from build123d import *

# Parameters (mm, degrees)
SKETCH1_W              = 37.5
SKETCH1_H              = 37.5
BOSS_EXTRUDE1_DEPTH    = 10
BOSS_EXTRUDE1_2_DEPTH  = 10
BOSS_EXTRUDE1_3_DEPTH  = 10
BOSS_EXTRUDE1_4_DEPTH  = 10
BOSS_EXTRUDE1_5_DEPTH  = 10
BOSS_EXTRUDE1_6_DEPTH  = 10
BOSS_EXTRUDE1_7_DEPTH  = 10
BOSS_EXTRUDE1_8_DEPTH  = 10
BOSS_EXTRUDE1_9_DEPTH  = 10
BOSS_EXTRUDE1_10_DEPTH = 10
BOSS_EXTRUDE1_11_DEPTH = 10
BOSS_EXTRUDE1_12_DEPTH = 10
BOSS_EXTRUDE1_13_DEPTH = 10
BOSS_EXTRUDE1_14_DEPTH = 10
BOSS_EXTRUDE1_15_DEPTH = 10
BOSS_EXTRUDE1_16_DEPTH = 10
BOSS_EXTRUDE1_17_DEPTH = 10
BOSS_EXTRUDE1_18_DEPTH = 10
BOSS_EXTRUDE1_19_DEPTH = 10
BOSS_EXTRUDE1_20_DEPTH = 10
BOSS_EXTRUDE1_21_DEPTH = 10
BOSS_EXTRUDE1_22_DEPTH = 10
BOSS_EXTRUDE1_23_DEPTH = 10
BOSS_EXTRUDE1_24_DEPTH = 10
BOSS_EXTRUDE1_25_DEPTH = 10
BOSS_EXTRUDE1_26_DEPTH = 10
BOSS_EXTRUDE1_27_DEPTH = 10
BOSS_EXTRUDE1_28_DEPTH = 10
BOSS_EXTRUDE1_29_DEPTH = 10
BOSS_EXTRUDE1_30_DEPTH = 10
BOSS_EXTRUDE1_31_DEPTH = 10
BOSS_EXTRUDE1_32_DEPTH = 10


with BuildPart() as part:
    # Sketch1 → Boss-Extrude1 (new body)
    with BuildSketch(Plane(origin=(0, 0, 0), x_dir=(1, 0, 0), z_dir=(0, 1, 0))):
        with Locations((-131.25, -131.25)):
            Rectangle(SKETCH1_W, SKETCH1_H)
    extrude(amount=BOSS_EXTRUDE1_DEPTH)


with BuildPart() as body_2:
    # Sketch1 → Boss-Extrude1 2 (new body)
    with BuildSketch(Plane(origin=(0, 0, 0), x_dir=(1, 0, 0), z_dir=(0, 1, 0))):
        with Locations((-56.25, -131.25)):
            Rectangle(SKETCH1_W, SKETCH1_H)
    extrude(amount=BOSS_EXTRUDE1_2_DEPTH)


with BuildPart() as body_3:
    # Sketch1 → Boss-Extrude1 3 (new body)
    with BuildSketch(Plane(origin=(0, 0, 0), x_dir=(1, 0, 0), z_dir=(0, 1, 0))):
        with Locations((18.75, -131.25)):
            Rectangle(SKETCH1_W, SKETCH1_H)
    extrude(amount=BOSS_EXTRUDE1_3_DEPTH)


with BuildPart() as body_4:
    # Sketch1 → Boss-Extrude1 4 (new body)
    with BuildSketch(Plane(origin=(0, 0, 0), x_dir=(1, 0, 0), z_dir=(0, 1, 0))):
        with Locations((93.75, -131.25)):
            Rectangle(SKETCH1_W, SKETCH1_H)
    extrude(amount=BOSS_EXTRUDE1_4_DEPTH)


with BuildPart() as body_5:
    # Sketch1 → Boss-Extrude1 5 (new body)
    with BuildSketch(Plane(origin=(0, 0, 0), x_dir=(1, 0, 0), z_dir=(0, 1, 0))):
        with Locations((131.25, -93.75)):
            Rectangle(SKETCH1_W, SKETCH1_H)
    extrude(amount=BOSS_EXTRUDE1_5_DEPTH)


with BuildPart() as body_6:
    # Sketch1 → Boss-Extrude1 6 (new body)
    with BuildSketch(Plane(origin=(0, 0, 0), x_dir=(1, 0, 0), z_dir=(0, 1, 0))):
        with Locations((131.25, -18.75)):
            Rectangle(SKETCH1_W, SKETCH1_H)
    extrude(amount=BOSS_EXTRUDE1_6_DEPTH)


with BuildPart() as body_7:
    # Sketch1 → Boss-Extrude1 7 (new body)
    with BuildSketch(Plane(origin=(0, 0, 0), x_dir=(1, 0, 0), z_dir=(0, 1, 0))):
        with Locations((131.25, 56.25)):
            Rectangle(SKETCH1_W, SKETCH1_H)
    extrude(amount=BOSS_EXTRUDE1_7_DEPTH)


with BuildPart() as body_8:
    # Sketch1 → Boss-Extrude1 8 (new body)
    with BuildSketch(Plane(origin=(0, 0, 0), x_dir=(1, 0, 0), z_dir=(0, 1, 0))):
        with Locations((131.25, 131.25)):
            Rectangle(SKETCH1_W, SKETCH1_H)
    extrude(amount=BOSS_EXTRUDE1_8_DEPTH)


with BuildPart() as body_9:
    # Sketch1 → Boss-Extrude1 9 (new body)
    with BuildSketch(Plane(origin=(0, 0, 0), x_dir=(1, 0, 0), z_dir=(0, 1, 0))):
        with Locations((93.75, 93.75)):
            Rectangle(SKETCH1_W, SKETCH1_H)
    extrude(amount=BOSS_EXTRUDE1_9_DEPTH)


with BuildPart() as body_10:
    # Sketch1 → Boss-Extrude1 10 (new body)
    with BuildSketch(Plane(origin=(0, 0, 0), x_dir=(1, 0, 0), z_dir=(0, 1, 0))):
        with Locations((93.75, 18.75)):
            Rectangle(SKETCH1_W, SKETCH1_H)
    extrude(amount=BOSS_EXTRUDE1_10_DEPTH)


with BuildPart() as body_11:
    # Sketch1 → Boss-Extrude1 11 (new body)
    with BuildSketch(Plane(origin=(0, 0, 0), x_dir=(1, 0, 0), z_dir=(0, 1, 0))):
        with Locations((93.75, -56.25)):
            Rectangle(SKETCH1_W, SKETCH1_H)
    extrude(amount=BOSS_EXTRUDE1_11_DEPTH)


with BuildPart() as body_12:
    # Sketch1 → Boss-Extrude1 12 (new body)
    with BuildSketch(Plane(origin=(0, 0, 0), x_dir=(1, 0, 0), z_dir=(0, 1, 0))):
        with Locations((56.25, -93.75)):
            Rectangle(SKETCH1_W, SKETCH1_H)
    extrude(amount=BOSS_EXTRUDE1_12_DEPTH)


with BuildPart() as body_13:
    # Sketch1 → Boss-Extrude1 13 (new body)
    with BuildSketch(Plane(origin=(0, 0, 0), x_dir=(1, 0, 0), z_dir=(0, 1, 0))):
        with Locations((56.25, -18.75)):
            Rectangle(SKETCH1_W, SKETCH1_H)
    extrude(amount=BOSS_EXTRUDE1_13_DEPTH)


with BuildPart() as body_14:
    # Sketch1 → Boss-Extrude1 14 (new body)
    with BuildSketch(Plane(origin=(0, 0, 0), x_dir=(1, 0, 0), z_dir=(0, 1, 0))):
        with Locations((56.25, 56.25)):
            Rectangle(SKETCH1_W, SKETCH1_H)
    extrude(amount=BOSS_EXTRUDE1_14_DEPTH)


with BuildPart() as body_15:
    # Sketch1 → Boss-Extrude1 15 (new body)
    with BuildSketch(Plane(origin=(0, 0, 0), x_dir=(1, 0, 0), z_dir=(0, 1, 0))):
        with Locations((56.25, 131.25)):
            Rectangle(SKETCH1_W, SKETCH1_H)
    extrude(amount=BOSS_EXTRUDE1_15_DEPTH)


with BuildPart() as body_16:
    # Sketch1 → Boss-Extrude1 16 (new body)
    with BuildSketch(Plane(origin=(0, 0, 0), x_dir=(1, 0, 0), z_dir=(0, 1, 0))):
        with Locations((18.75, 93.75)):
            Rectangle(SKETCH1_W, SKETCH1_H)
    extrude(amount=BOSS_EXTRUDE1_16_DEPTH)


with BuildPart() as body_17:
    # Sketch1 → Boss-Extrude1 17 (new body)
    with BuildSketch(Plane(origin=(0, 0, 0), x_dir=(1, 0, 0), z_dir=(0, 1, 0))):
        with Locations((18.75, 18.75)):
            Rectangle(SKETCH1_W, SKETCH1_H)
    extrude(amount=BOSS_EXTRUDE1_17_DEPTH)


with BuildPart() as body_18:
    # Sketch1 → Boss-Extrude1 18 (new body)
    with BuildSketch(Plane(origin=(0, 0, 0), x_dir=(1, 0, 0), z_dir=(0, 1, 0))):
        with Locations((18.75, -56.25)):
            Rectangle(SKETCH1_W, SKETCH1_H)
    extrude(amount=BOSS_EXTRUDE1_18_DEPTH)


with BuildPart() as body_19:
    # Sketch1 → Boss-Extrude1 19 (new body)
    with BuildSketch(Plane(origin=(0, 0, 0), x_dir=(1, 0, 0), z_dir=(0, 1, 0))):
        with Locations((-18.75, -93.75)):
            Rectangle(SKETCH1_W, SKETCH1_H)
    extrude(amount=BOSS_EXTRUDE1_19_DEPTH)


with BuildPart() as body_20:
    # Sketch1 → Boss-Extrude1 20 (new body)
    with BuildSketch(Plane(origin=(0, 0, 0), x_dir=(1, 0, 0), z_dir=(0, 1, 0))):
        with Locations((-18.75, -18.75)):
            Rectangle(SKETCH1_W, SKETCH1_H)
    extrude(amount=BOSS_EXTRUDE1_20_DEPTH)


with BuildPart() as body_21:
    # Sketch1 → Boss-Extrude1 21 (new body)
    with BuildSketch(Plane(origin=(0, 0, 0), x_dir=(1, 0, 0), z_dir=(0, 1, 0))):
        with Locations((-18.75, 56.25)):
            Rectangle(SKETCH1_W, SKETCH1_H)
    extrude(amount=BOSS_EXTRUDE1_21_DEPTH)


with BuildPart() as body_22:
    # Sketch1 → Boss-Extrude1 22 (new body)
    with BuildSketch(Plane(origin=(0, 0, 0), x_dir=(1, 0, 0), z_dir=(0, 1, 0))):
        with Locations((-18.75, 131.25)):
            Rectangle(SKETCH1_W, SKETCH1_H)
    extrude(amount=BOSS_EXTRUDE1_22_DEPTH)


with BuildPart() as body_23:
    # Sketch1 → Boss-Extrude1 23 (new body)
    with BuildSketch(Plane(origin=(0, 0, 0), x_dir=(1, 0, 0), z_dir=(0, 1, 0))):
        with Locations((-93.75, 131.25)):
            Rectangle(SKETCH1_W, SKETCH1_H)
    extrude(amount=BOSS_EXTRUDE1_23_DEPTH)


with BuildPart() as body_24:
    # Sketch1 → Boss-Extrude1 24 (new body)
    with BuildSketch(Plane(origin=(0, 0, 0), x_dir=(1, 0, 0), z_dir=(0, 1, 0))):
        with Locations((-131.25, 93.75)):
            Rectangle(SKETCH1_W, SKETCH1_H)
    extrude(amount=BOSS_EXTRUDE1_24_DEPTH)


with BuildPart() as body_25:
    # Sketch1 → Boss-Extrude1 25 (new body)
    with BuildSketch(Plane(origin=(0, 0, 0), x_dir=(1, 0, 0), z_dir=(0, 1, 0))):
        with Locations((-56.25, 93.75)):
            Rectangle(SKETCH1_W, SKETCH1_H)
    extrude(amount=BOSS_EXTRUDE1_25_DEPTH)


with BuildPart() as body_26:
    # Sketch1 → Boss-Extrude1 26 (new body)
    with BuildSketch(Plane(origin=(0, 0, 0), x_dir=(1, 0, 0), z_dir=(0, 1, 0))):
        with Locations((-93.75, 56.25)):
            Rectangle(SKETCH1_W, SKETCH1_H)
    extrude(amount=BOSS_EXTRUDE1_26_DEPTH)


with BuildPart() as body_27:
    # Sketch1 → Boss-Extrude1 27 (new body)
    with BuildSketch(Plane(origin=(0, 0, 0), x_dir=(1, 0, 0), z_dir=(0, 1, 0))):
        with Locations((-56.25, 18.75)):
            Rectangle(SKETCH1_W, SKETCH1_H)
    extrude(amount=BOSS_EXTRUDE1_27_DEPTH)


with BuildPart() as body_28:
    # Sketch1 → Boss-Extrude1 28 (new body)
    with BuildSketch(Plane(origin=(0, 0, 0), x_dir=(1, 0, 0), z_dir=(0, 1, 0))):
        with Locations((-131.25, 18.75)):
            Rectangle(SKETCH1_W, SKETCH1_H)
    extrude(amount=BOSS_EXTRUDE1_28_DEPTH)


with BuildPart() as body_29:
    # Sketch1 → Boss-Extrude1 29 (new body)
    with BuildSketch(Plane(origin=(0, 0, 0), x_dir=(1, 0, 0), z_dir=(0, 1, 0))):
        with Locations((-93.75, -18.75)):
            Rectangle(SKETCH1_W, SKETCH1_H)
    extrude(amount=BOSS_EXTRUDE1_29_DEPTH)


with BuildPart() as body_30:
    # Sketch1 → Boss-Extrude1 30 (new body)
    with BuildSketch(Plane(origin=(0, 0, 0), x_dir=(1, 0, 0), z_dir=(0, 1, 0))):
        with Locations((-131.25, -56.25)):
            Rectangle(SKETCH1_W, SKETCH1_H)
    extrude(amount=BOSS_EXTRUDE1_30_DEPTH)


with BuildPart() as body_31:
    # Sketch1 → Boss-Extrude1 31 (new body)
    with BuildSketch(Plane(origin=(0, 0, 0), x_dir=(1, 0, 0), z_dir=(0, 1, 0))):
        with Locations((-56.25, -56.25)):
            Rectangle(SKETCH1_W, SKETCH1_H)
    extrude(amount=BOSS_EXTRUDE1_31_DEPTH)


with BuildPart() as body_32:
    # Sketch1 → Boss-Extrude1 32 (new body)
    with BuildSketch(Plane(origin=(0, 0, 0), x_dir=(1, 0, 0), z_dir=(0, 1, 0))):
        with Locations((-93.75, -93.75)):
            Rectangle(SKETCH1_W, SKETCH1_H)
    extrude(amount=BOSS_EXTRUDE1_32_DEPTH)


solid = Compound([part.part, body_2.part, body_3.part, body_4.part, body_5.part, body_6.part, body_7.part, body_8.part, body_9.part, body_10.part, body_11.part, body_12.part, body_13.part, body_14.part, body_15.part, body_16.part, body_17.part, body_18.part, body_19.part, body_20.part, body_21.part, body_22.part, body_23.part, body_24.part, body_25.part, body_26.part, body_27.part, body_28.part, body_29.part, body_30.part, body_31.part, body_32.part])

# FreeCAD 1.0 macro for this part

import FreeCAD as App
import Part
import Sketcher
from FreeCAD import Vector
Q = App.Units.Quantity


def add_polygon(sketch, points):
    """Adds a closed chain of lines whose ends are joined by coincident constraints."""
    first, n = sketch.GeometryCount, len(points)
    for a, b in zip(points, points[1:] + points[:1]):
        sketch.addGeometry(Part.LineSegment(App.Vector(*a, 0), App.Vector(*b, 0)), False)
    for i in range(n):
        sketch.addConstraint(Sketcher.Constraint("Coincident", first + i, 2, first + (i + 1) % n, 1))

doc = App.newDocument("Part")
body = doc.addObject("PartDesign::Body", "Body")

# Sketch on XZ plane
sketch1 = body.newObject("Sketcher::SketchObject", "Sketch")
sketch1.AttachmentSupport = (doc.getObject("XZ_Plane"), [""])
sketch1.MapMode = "FlatFace"
add_polygon(sketch1, [(-150, 112), (-150, 150), (-112, 150), (-112, 112)])  # lines 0-3
sketch1.addConstraint([
    Sketcher.Constraint("Vertical", 0),
    Sketcher.Constraint("Horizontal", 1),
    Sketcher.Constraint("Vertical", 2),
    Sketcher.Constraint("Horizontal", 3),
    Sketcher.Constraint("Equal", 3, 0),
    Sketcher.Constraint("DistanceX", 1, 1, 1, 2, Q("37.5 mm")),
    Sketcher.Constraint("DistanceX", 0, 2, -1, 1, Q("150 mm")),
    Sketcher.Constraint("DistanceY", -1, 1, 0, 2, Q("150 mm")),
])
pad1 = body.newObject("PartDesign::Pad", "Pad")
pad1.Profile = sketch1
pad1.Length = 10
pad1.Reversed = True
body2 = doc.addObject("PartDesign::Body", "Body001")

# Sketch on XZ plane
sketch2 = body2.newObject("Sketcher::SketchObject", "Sketch001")
sketch2.AttachmentSupport = (doc.getObject("XZ_Plane001"), [""])
sketch2.MapMode = "FlatFace"
add_polygon(sketch2, [(-75, 112), (-75, 150), (-38, 150), (-38, 112)])  # lines 0-3
sketch2.addConstraint([
    Sketcher.Constraint("Vertical", 0),
    Sketcher.Constraint("Horizontal", 1),
    Sketcher.Constraint("Vertical", 2),
    Sketcher.Constraint("Horizontal", 3),
    Sketcher.Constraint("Equal", 3, 0),
    Sketcher.Constraint("DistanceX", 1, 1, 1, 2, Q("37.5 mm")),
    Sketcher.Constraint("DistanceX", 0, 2, -1, 1, Q("75 mm")),
    Sketcher.Constraint("DistanceY", -1, 1, 0, 2, Q("150 mm")),
])
pad2 = body2.newObject("PartDesign::Pad", "Pad001")
pad2.Profile = sketch2
pad2.Length = 10
pad2.Reversed = True
body3 = doc.addObject("PartDesign::Body", "Body002")

# Sketch on XZ plane
sketch3 = body3.newObject("Sketcher::SketchObject", "Sketch002")
sketch3.AttachmentSupport = (doc.getObject("XZ_Plane002"), [""])
sketch3.MapMode = "FlatFace"
add_polygon(sketch3, [(0, 112), (0, 150), (38, 150), (38, 112)])  # lines 0-3
sketch3.addConstraint([
    Sketcher.Constraint("Vertical", 0),
    Sketcher.Constraint("Horizontal", 1),
    Sketcher.Constraint("Vertical", 2),
    Sketcher.Constraint("Horizontal", 3),
    Sketcher.Constraint("PointOnObject", 0, 2, -2),
    Sketcher.Constraint("Equal", 3, 0),
    Sketcher.Constraint("DistanceX", 1, 1, 1, 2, Q("37.5 mm")),
    Sketcher.Constraint("DistanceY", -1, 1, 0, 2, Q("150 mm")),
])
pad3 = body3.newObject("PartDesign::Pad", "Pad002")
pad3.Profile = sketch3
pad3.Length = 10
pad3.Reversed = True
body4 = doc.addObject("PartDesign::Body", "Body003")

# Sketch on XZ plane
sketch4 = body4.newObject("Sketcher::SketchObject", "Sketch003")
sketch4.AttachmentSupport = (doc.getObject("XZ_Plane003"), [""])
sketch4.MapMode = "FlatFace"
add_polygon(sketch4, [(75, 112), (75, 150), (112, 150), (112, 112)])  # lines 0-3
sketch4.addConstraint([
    Sketcher.Constraint("Vertical", 0),
    Sketcher.Constraint("Horizontal", 1),
    Sketcher.Constraint("Vertical", 2),
    Sketcher.Constraint("Horizontal", 3),
    Sketcher.Constraint("Equal", 3, 0),
    Sketcher.Constraint("DistanceX", 1, 1, 1, 2, Q("37.5 mm")),
    Sketcher.Constraint("DistanceX", -1, 1, 0, 2, Q("75 mm")),
    Sketcher.Constraint("DistanceY", -1, 1, 0, 2, Q("150 mm")),
])
pad4 = body4.newObject("PartDesign::Pad", "Pad003")
pad4.Profile = sketch4
pad4.Length = 10
pad4.Reversed = True
body5 = doc.addObject("PartDesign::Body", "Body004")

# Sketch on XZ plane
sketch5 = body5.newObject("Sketcher::SketchObject", "Sketch004")
sketch5.AttachmentSupport = (doc.getObject("XZ_Plane004"), [""])
sketch5.MapMode = "FlatFace"
add_polygon(sketch5, [(112, 75), (112, 112), (150, 112), (150, 75)])  # lines 0-3
sketch5.addConstraint([
    Sketcher.Constraint("Vertical", 0),
    Sketcher.Constraint("Horizontal", 1),
    Sketcher.Constraint("Vertical", 2),
    Sketcher.Constraint("Horizontal", 3),
    Sketcher.Constraint("Equal", 3, 0),
    Sketcher.Constraint("DistanceX", 1, 1, 1, 2, Q("37.5 mm")),
    Sketcher.Constraint("DistanceX", -1, 1, 1, 2, Q("150 mm")),
    Sketcher.Constraint("DistanceY", -1, 1, 2, 2, Q("75 mm")),
])
pad5 = body5.newObject("PartDesign::Pad", "Pad004")
pad5.Profile = sketch5
pad5.Length = 10
pad5.Reversed = True
body6 = doc.addObject("PartDesign::Body", "Body005")

# Sketch on XZ plane
sketch6 = body6.newObject("Sketcher::SketchObject", "Sketch005")
sketch6.AttachmentSupport = (doc.getObject("XZ_Plane005"), [""])
sketch6.MapMode = "FlatFace"
add_polygon(sketch6, [(112, 0), (112, 38), (150, 38), (150, 0)])  # lines 0-3
sketch6.addConstraint([
    Sketcher.Constraint("Vertical", 0),
    Sketcher.Constraint("Horizontal", 1),
    Sketcher.Constraint("Vertical", 2),
    Sketcher.Constraint("Horizontal", 3),
    Sketcher.Constraint("PointOnObject", 2, 2, -1),
    Sketcher.Constraint("Equal", 3, 0),
    Sketcher.Constraint("DistanceX", 1, 1, 1, 2, Q("37.5 mm")),
    Sketcher.Constraint("DistanceX", -1, 1, 1, 2, Q("150 mm")),
])
pad6 = body6.newObject("PartDesign::Pad", "Pad005")
pad6.Profile = sketch6
pad6.Length = 10
pad6.Reversed = True
body7 = doc.addObject("PartDesign::Body", "Body006")

# Sketch on XZ plane
sketch7 = body7.newObject("Sketcher::SketchObject", "Sketch006")
sketch7.AttachmentSupport = (doc.getObject("XZ_Plane006"), [""])
sketch7.MapMode = "FlatFace"
add_polygon(sketch7, [(112, -75), (112, -38), (150, -38), (150, -75)])  # lines 0-3
sketch7.addConstraint([
    Sketcher.Constraint("Vertical", 0),
    Sketcher.Constraint("Horizontal", 1),
    Sketcher.Constraint("Vertical", 2),
    Sketcher.Constraint("Horizontal", 3),
    Sketcher.Constraint("Equal", 3, 0),
    Sketcher.Constraint("DistanceX", 1, 1, 1, 2, Q("37.5 mm")),
    Sketcher.Constraint("DistanceX", -1, 1, 1, 2, Q("150 mm")),
    Sketcher.Constraint("DistanceY", 2, 2, -1, 1, Q("75 mm")),
])
pad7 = body7.newObject("PartDesign::Pad", "Pad006")
pad7.Profile = sketch7
pad7.Length = 10
pad7.Reversed = True
body8 = doc.addObject("PartDesign::Body", "Body007")

# Sketch on XZ plane
sketch8 = body8.newObject("Sketcher::SketchObject", "Sketch007")
sketch8.AttachmentSupport = (doc.getObject("XZ_Plane007"), [""])
sketch8.MapMode = "FlatFace"
add_polygon(sketch8, [(112, -150), (112, -112), (150, -112), (150, -150)])  # lines 0-3
sketch8.addConstraint([
    Sketcher.Constraint("Vertical", 0),
    Sketcher.Constraint("Horizontal", 1),
    Sketcher.Constraint("Vertical", 2),
    Sketcher.Constraint("Horizontal", 3),
    Sketcher.Constraint("Equal", 3, 0),
    Sketcher.Constraint("DistanceX", 1, 1, 1, 2, Q("37.5 mm")),
    Sketcher.Constraint("DistanceX", -1, 1, 1, 2, Q("150 mm")),
    Sketcher.Constraint("DistanceY", 2, 2, -1, 1, Q("150 mm")),
])
pad8 = body8.newObject("PartDesign::Pad", "Pad007")
pad8.Profile = sketch8
pad8.Length = 10
pad8.Reversed = True
body9 = doc.addObject("PartDesign::Body", "Body008")

# Sketch on XZ plane
sketch9 = body9.newObject("Sketcher::SketchObject", "Sketch008")
sketch9.AttachmentSupport = (doc.getObject("XZ_Plane008"), [""])
sketch9.MapMode = "FlatFace"
add_polygon(sketch9, [(75, -112), (75, -75), (112, -75), (112, -112)])  # lines 0-3
sketch9.addConstraint([
    Sketcher.Constraint("Vertical", 0),
    Sketcher.Constraint("Horizontal", 1),
    Sketcher.Constraint("Vertical", 2),
    Sketcher.Constraint("Horizontal", 3),
    Sketcher.Constraint("Equal", 3, 0),
    Sketcher.Constraint("DistanceX", 1, 1, 1, 2, Q("37.5 mm")),
    Sketcher.Constraint("DistanceX", -1, 1, 0, 2, Q("75 mm")),
    Sketcher.Constraint("DistanceY", 0, 2, -1, 1, Q("75 mm")),
])
pad9 = body9.newObject("PartDesign::Pad", "Pad008")
pad9.Profile = sketch9
pad9.Length = 10
pad9.Reversed = True
body10 = doc.addObject("PartDesign::Body", "Body009")

# Sketch on XZ plane
sketch10 = body10.newObject("Sketcher::SketchObject", "Sketch009")
sketch10.AttachmentSupport = (doc.getObject("XZ_Plane009"), [""])
sketch10.MapMode = "FlatFace"
add_polygon(sketch10, [(75, -38), (75, 0), (112, 0), (112, -38)])  # lines 0-3
sketch10.addConstraint([
    Sketcher.Constraint("Vertical", 0),
    Sketcher.Constraint("Horizontal", 1),
    Sketcher.Constraint("Vertical", 2),
    Sketcher.Constraint("Horizontal", 3),
    Sketcher.Constraint("PointOnObject", 0, 2, -1),
    Sketcher.Constraint("Equal", 3, 0),
    Sketcher.Constraint("DistanceX", 1, 1, 1, 2, Q("37.5 mm")),
    Sketcher.Constraint("DistanceX", -1, 1, 0, 2, Q("75 mm")),
])
pad10 = body10.newObject("PartDesign::Pad", "Pad009")
pad10.Profile = sketch10
pad10.Length = 10
pad10.Reversed = True
body11 = doc.addObject("PartDesign::Body", "Body010")

# Sketch on XZ plane
sketch11 = body11.newObject("Sketcher::SketchObject", "Sketch010")
sketch11.AttachmentSupport = (doc.getObject("XZ_Plane010"), [""])
sketch11.MapMode = "FlatFace"
add_polygon(sketch11, [(75, 38), (75, 75), (112, 75), (112, 38)])  # lines 0-3
sketch11.addConstraint([
    Sketcher.Constraint("Vertical", 0),
    Sketcher.Constraint("Horizontal", 1),
    Sketcher.Constraint("Vertical", 2),
    Sketcher.Constraint("Horizontal", 3),
    Sketcher.Constraint("Equal", 3, 0),
    Sketcher.Constraint("DistanceX", 1, 1, 1, 2, Q("37.5 mm")),
    Sketcher.Constraint("DistanceX", -1, 1, 0, 2, Q("75 mm")),
    Sketcher.Constraint("DistanceY", -1, 1, 0, 2, Q("75 mm")),
])
pad11 = body11.newObject("PartDesign::Pad", "Pad010")
pad11.Profile = sketch11
pad11.Length = 10
pad11.Reversed = True
body12 = doc.addObject("PartDesign::Body", "Body011")

# Sketch on XZ plane
sketch12 = body12.newObject("Sketcher::SketchObject", "Sketch011")
sketch12.AttachmentSupport = (doc.getObject("XZ_Plane011"), [""])
sketch12.MapMode = "FlatFace"
add_polygon(sketch12, [(38, 75), (38, 112), (75, 112), (75, 75)])  # lines 0-3
sketch12.addConstraint([
    Sketcher.Constraint("Vertical", 0),
    Sketcher.Constraint("Horizontal", 1),
    Sketcher.Constraint("Vertical", 2),
    Sketcher.Constraint("Horizontal", 3),
    Sketcher.Constraint("Equal", 3, 0),
    Sketcher.Constraint("DistanceX", 1, 1, 1, 2, Q("37.5 mm")),
    Sketcher.Constraint("DistanceX", -1, 1, 1, 2, Q("75 mm")),
    Sketcher.Constraint("DistanceY", -1, 1, 2, 2, Q("75 mm")),
])
pad12 = body12.newObject("PartDesign::Pad", "Pad011")
pad12.Profile = sketch12
pad12.Length = 10
pad12.Reversed = True
body13 = doc.addObject("PartDesign::Body", "Body012")

# Sketch on XZ plane
sketch13 = body13.newObject("Sketcher::SketchObject", "Sketch012")
sketch13.AttachmentSupport = (doc.getObject("XZ_Plane012"), [""])
sketch13.MapMode = "FlatFace"
add_polygon(sketch13, [(38, 0), (38, 38), (75, 38), (75, 0)])  # lines 0-3
sketch13.addConstraint([
    Sketcher.Constraint("Vertical", 0),
    Sketcher.Constraint("Horizontal", 1),
    Sketcher.Constraint("Vertical", 2),
    Sketcher.Constraint("Horizontal", 3),
    Sketcher.Constraint("PointOnObject", 2, 2, -1),
    Sketcher.Constraint("Equal", 3, 0),
    Sketcher.Constraint("DistanceX", 1, 1, 1, 2, Q("37.5 mm")),
    Sketcher.Constraint("DistanceX", -1, 1, 1, 2, Q("75 mm")),
])
pad13 = body13.newObject("PartDesign::Pad", "Pad012")
pad13.Profile = sketch13
pad13.Length = 10
pad13.Reversed = True
body14 = doc.addObject("PartDesign::Body", "Body013")

# Sketch on XZ plane
sketch14 = body14.newObject("Sketcher::SketchObject", "Sketch013")
sketch14.AttachmentSupport = (doc.getObject("XZ_Plane013"), [""])
sketch14.MapMode = "FlatFace"
add_polygon(sketch14, [(38, -75), (38, -38), (75, -38), (75, -75)])  # lines 0-3
sketch14.addConstraint([
    Sketcher.Constraint("Vertical", 0),
    Sketcher.Constraint("Horizontal", 1),
    Sketcher.Constraint("Vertical", 2),
    Sketcher.Constraint("Horizontal", 3),
    Sketcher.Constraint("Equal", 3, 0),
    Sketcher.Constraint("DistanceX", 1, 1, 1, 2, Q("37.5 mm")),
    Sketcher.Constraint("DistanceX", -1, 1, 1, 2, Q("75 mm")),
    Sketcher.Constraint("DistanceY", 2, 2, -1, 1, Q("75 mm")),
])
pad14 = body14.newObject("PartDesign::Pad", "Pad013")
pad14.Profile = sketch14
pad14.Length = 10
pad14.Reversed = True
body15 = doc.addObject("PartDesign::Body", "Body014")

# Sketch on XZ plane
sketch15 = body15.newObject("Sketcher::SketchObject", "Sketch014")
sketch15.AttachmentSupport = (doc.getObject("XZ_Plane014"), [""])
sketch15.MapMode = "FlatFace"
add_polygon(sketch15, [(38, -150), (38, -112), (75, -112), (75, -150)])  # lines 0-3
sketch15.addConstraint([
    Sketcher.Constraint("Vertical", 0),
    Sketcher.Constraint("Horizontal", 1),
    Sketcher.Constraint("Vertical", 2),
    Sketcher.Constraint("Horizontal", 3),
    Sketcher.Constraint("Equal", 3, 0),
    Sketcher.Constraint("DistanceX", 1, 1, 1, 2, Q("37.5 mm")),
    Sketcher.Constraint("DistanceX", -1, 1, 1, 2, Q("75 mm")),
    Sketcher.Constraint("DistanceY", 2, 2, -1, 1, Q("150 mm")),
])
pad15 = body15.newObject("PartDesign::Pad", "Pad014")
pad15.Profile = sketch15
pad15.Length = 10
pad15.Reversed = True
body16 = doc.addObject("PartDesign::Body", "Body015")

# Sketch on XZ plane
sketch16 = body16.newObject("Sketcher::SketchObject", "Sketch015")
sketch16.AttachmentSupport = (doc.getObject("XZ_Plane015"), [""])
sketch16.MapMode = "FlatFace"
add_polygon(sketch16, [(0, -112), (0, -75), (38, -75), (38, -112)])  # lines 0-3
sketch16.addConstraint([
    Sketcher.Constraint("Vertical", 0),
    Sketcher.Constraint("Horizontal", 1),
    Sketcher.Constraint("Vertical", 2),
    Sketcher.Constraint("Horizontal", 3),
    Sketcher.Constraint("PointOnObject", 0, 2, -2),
    Sketcher.Constraint("Equal", 3, 0),
    Sketcher.Constraint("DistanceX", 1, 1, 1, 2, Q("37.5 mm")),
    Sketcher.Constraint("DistanceY", 0, 2, -1, 1, Q("75 mm")),
])
pad16 = body16.newObject("PartDesign::Pad", "Pad015")
pad16.Profile = sketch16
pad16.Length = 10
pad16.Reversed = True
body17 = doc.addObject("PartDesign::Body", "Body016")

# Sketch on XZ plane
sketch17 = body17.newObject("Sketcher::SketchObject", "Sketch016")
sketch17.AttachmentSupport = (doc.getObject("XZ_Plane016"), [""])
sketch17.MapMode = "FlatFace"
add_polygon(sketch17, [(0, -38), (0, 0), (38, 0), (38, -38)])  # lines 0-3
sketch17.addConstraint([
    Sketcher.Constraint("Vertical", 0),
    Sketcher.Constraint("Horizontal", 1),
    Sketcher.Constraint("Vertical", 2),
    Sketcher.Constraint("Horizontal", 3),
    Sketcher.Constraint("Coincident", 0, 2, -1, 1),
    Sketcher.Constraint("Equal", 3, 0),
    Sketcher.Constraint("DistanceX", 1, 1, 1, 2, Q("37.5 mm")),
])
pad17 = body17.newObject("PartDesign::Pad", "Pad016")
pad17.Profile = sketch17
pad17.Length = 10
pad17.Reversed = True
body18 = doc.addObject("PartDesign::Body", "Body017")

# Sketch on XZ plane
sketch18 = body18.newObject("Sketcher::SketchObject", "Sketch017")
sketch18.AttachmentSupport = (doc.getObject("XZ_Plane017"), [""])
sketch18.MapMode = "FlatFace"
add_polygon(sketch18, [(0, 38), (0, 75), (38, 75), (38, 38)])  # lines 0-3
sketch18.addConstraint([
    Sketcher.Constraint("Vertical", 0),
    Sketcher.Constraint("Horizontal", 1),
    Sketcher.Constraint("Vertical", 2),
    Sketcher.Constraint("Horizontal", 3),
    Sketcher.Constraint("PointOnObject", 0, 2, -2),
    Sketcher.Constraint("Equal", 3, 0),
    Sketcher.Constraint("DistanceX", 1, 1, 1, 2, Q("37.5 mm")),
    Sketcher.Constraint("DistanceY", -1, 1, 0, 2, Q("75 mm")),
])
pad18 = body18.newObject("PartDesign::Pad", "Pad017")
pad18.Profile = sketch18
pad18.Length = 10
pad18.Reversed = True
body19 = doc.addObject("PartDesign::Body", "Body018")

# Sketch on XZ plane
sketch19 = body19.newObject("Sketcher::SketchObject", "Sketch018")
sketch19.AttachmentSupport = (doc.getObject("XZ_Plane018"), [""])
sketch19.MapMode = "FlatFace"
add_polygon(sketch19, [(-38, 75), (-38, 112), (0, 112), (0, 75)])  # lines 0-3
sketch19.addConstraint([
    Sketcher.Constraint("Vertical", 0),
    Sketcher.Constraint("Horizontal", 1),
    Sketcher.Constraint("Vertical", 2),
    Sketcher.Constraint("Horizontal", 3),
    Sketcher.Constraint("PointOnObject", 1, 2, -2),
    Sketcher.Constraint("Equal", 3, 0),
    Sketcher.Constraint("DistanceX", 1, 1, 1, 2, Q("37.5 mm")),
    Sketcher.Constraint("DistanceY", -1, 1, 2, 2, Q("75 mm")),
])
pad19 = body19.newObject("PartDesign::Pad", "Pad018")
pad19.Profile = sketch19
pad19.Length = 10
pad19.Reversed = True
body20 = doc.addObject("PartDesign::Body", "Body019")

# Sketch on XZ plane
sketch20 = body20.newObject("Sketcher::SketchObject", "Sketch019")
sketch20.AttachmentSupport = (doc.getObject("XZ_Plane019"), [""])
sketch20.MapMode = "FlatFace"
add_polygon(sketch20, [(-38, 0), (-38, 38), (0, 38), (0, 0)])  # lines 0-3
sketch20.addConstraint([
    Sketcher.Constraint("Vertical", 0),
    Sketcher.Constraint("Horizontal", 1),
    Sketcher.Constraint("Vertical", 2),
    Sketcher.Constraint("Horizontal", 3),
    Sketcher.Constraint("Coincident", 2, 2, -1, 1),
    Sketcher.Constraint("Equal", 3, 0),
    Sketcher.Constraint("DistanceX", 1, 1, 1, 2, Q("37.5 mm")),
])
pad20 = body20.newObject("PartDesign::Pad", "Pad019")
pad20.Profile = sketch20
pad20.Length = 10
pad20.Reversed = True
body21 = doc.addObject("PartDesign::Body", "Body020")

# Sketch on XZ plane
sketch21 = body21.newObject("Sketcher::SketchObject", "Sketch020")
sketch21.AttachmentSupport = (doc.getObject("XZ_Plane020"), [""])
sketch21.MapMode = "FlatFace"
add_polygon(sketch21, [(-38, -75), (-38, -38), (0, -38), (0, -75)])  # lines 0-3
sketch21.addConstraint([
    Sketcher.Constraint("Vertical", 0),
    Sketcher.Constraint("Horizontal", 1),
    Sketcher.Constraint("Vertical", 2),
    Sketcher.Constraint("Horizontal", 3),
    Sketcher.Constraint("PointOnObject", 1, 2, -2),
    Sketcher.Constraint("Equal", 3, 0),
    Sketcher.Constraint("DistanceX", 1, 1, 1, 2, Q("37.5 mm")),
    Sketcher.Constraint("DistanceY", 2, 2, -1, 1, Q("75 mm")),
])
pad21 = body21.newObject("PartDesign::Pad", "Pad020")
pad21.Profile = sketch21
pad21.Length = 10
pad21.Reversed = True
body22 = doc.addObject("PartDesign::Body", "Body021")

# Sketch on XZ plane
sketch22 = body22.newObject("Sketcher::SketchObject", "Sketch021")
sketch22.AttachmentSupport = (doc.getObject("XZ_Plane021"), [""])
sketch22.MapMode = "FlatFace"
add_polygon(sketch22, [(-38, -150), (-38, -112), (0, -112), (0, -150)])  # lines 0-3
sketch22.addConstraint([
    Sketcher.Constraint("Vertical", 0),
    Sketcher.Constraint("Horizontal", 1),
    Sketcher.Constraint("Vertical", 2),
    Sketcher.Constraint("Horizontal", 3),
    Sketcher.Constraint("PointOnObject", 1, 2, -2),
    Sketcher.Constraint("Equal", 3, 0),
    Sketcher.Constraint("DistanceX", 1, 1, 1, 2, Q("37.5 mm")),
    Sketcher.Constraint("DistanceY", 2, 2, -1, 1, Q("150 mm")),
])
pad22 = body22.newObject("PartDesign::Pad", "Pad021")
pad22.Profile = sketch22
pad22.Length = 10
pad22.Reversed = True
body23 = doc.addObject("PartDesign::Body", "Body022")

# Sketch on XZ plane
sketch23 = body23.newObject("Sketcher::SketchObject", "Sketch022")
sketch23.AttachmentSupport = (doc.getObject("XZ_Plane022"), [""])
sketch23.MapMode = "FlatFace"
add_polygon(sketch23, [(-112, -150), (-112, -112), (-75, -112), (-75, -150)])  # lines 0-3
sketch23.addConstraint([
    Sketcher.Constraint("Vertical", 0),
    Sketcher.Constraint("Horizontal", 1),
    Sketcher.Constraint("Vertical", 2),
    Sketcher.Constraint("Horizontal", 3),
    Sketcher.Constraint("Equal", 3, 0),
    Sketcher.Constraint("DistanceX", 1, 1, 1, 2, Q("37.5 mm")),
    Sketcher.Constraint("DistanceX", 1, 2, -1, 1, Q("75 mm")),
    Sketcher.Constraint("DistanceY", 2, 2, -1, 1, Q("150 mm")),
])
pad23 = body23.newObject("PartDesign::Pad", "Pad022")
pad23.Profile = sketch23
pad23.Length = 10
pad23.Reversed = True
body24 = doc.addObject("PartDesign::Body", "Body023")

# Sketch on XZ plane
sketch24 = body24.newObject("Sketcher::SketchObject", "Sketch023")
sketch24.AttachmentSupport = (doc.getObject("XZ_Plane023"), [""])
sketch24.MapMode = "FlatFace"
add_polygon(sketch24, [(-150, -112), (-150, -75), (-112, -75), (-112, -112)])  # lines 0-3
sketch24.addConstraint([
    Sketcher.Constraint("Vertical", 0),
    Sketcher.Constraint("Horizontal", 1),
    Sketcher.Constraint("Vertical", 2),
    Sketcher.Constraint("Horizontal", 3),
    Sketcher.Constraint("Equal", 3, 0),
    Sketcher.Constraint("DistanceX", 1, 1, 1, 2, Q("37.5 mm")),
    Sketcher.Constraint("DistanceX", 0, 2, -1, 1, Q("150 mm")),
    Sketcher.Constraint("DistanceY", 0, 2, -1, 1, Q("75 mm")),
])
pad24 = body24.newObject("PartDesign::Pad", "Pad023")
pad24.Profile = sketch24
pad24.Length = 10
pad24.Reversed = True
body25 = doc.addObject("PartDesign::Body", "Body024")

# Sketch on XZ plane
sketch25 = body25.newObject("Sketcher::SketchObject", "Sketch024")
sketch25.AttachmentSupport = (doc.getObject("XZ_Plane024"), [""])
sketch25.MapMode = "FlatFace"
add_polygon(sketch25, [(-75, -112), (-75, -75), (-38, -75), (-38, -112)])  # lines 0-3
sketch25.addConstraint([
    Sketcher.Constraint("Vertical", 0),
    Sketcher.Constraint("Horizontal", 1),
    Sketcher.Constraint("Vertical", 2),
    Sketcher.Constraint("Horizontal", 3),
    Sketcher.Constraint("Equal", 3, 0),
    Sketcher.Constraint("DistanceX", 1, 1, 1, 2, Q("37.5 mm")),
    Sketcher.Constraint("DistanceX", 0, 2, -1, 1, Q("75 mm")),
    Sketcher.Constraint("DistanceY", 0, 2, -1, 1, Q("75 mm")),
])
pad25 = body25.newObject("PartDesign::Pad", "Pad024")
pad25.Profile = sketch25
pad25.Length = 10
pad25.Reversed = True
body26 = doc.addObject("PartDesign::Body", "Body025")

# Sketch on XZ plane
sketch26 = body26.newObject("Sketcher::SketchObject", "Sketch025")
sketch26.AttachmentSupport = (doc.getObject("XZ_Plane025"), [""])
sketch26.MapMode = "FlatFace"
add_polygon(sketch26, [(-112, -75), (-112, -38), (-75, -38), (-75, -75)])  # lines 0-3
sketch26.addConstraint([
    Sketcher.Constraint("Vertical", 0),
    Sketcher.Constraint("Horizontal", 1),
    Sketcher.Constraint("Vertical", 2),
    Sketcher.Constraint("Horizontal", 3),
    Sketcher.Constraint("Equal", 3, 0),
    Sketcher.Constraint("DistanceX", 1, 1, 1, 2, Q("37.5 mm")),
    Sketcher.Constraint("DistanceX", 1, 2, -1, 1, Q("75 mm")),
    Sketcher.Constraint("DistanceY", 2, 2, -1, 1, Q("75 mm")),
])
pad26 = body26.newObject("PartDesign::Pad", "Pad025")
pad26.Profile = sketch26
pad26.Length = 10
pad26.Reversed = True
body27 = doc.addObject("PartDesign::Body", "Body026")

# Sketch on XZ plane
sketch27 = body27.newObject("Sketcher::SketchObject", "Sketch026")
sketch27.AttachmentSupport = (doc.getObject("XZ_Plane026"), [""])
sketch27.MapMode = "FlatFace"
add_polygon(sketch27, [(-75, -38), (-75, 0), (-38, 0), (-38, -38)])  # lines 0-3
sketch27.addConstraint([
    Sketcher.Constraint("Vertical", 0),
    Sketcher.Constraint("Horizontal", 1),
    Sketcher.Constraint("Vertical", 2),
    Sketcher.Constraint("Horizontal", 3),
    Sketcher.Constraint("PointOnObject", 0, 2, -1),
    Sketcher.Constraint("Equal", 3, 0),
    Sketcher.Constraint("DistanceX", 1, 1, 1, 2, Q("37.5 mm")),
    Sketcher.Constraint("DistanceX", 0, 2, -1, 1, Q("75 mm")),
])
pad27 = body27.newObject("PartDesign::Pad", "Pad026")
pad27.Profile = sketch27
pad27.Length = 10
pad27.Reversed = True
body28 = doc.addObject("PartDesign::Body", "Body027")

# Sketch on XZ plane
sketch28 = body28.newObject("Sketcher::SketchObject", "Sketch027")
sketch28.AttachmentSupport = (doc.getObject("XZ_Plane027"), [""])
sketch28.MapMode = "FlatFace"
add_polygon(sketch28, [(-150, -38), (-150, 0), (-112, 0), (-112, -38)])  # lines 0-3
sketch28.addConstraint([
    Sketcher.Constraint("Vertical", 0),
    Sketcher.Constraint("Horizontal", 1),
    Sketcher.Constraint("Vertical", 2),
    Sketcher.Constraint("Horizontal", 3),
    Sketcher.Constraint("PointOnObject", 0, 2, -1),
    Sketcher.Constraint("Equal", 3, 0),
    Sketcher.Constraint("DistanceX", 1, 1, 1, 2, Q("37.5 mm")),
    Sketcher.Constraint("DistanceX", 0, 2, -1, 1, Q("150 mm")),
])
pad28 = body28.newObject("PartDesign::Pad", "Pad027")
pad28.Profile = sketch28
pad28.Length = 10
pad28.Reversed = True
body29 = doc.addObject("PartDesign::Body", "Body028")

# Sketch on XZ plane
sketch29 = body29.newObject("Sketcher::SketchObject", "Sketch028")
sketch29.AttachmentSupport = (doc.getObject("XZ_Plane028"), [""])
sketch29.MapMode = "FlatFace"
add_polygon(sketch29, [(-112, 0), (-112, 38), (-75, 38), (-75, 0)])  # lines 0-3
sketch29.addConstraint([
    Sketcher.Constraint("Vertical", 0),
    Sketcher.Constraint("Horizontal", 1),
    Sketcher.Constraint("Vertical", 2),
    Sketcher.Constraint("Horizontal", 3),
    Sketcher.Constraint("PointOnObject", 2, 2, -1),
    Sketcher.Constraint("Equal", 3, 0),
    Sketcher.Constraint("DistanceX", 1, 1, 1, 2, Q("37.5 mm")),
    Sketcher.Constraint("DistanceX", 1, 2, -1, 1, Q("75 mm")),
])
pad29 = body29.newObject("PartDesign::Pad", "Pad028")
pad29.Profile = sketch29
pad29.Length = 10
pad29.Reversed = True
body30 = doc.addObject("PartDesign::Body", "Body029")

# Sketch on XZ plane
sketch30 = body30.newObject("Sketcher::SketchObject", "Sketch029")
sketch30.AttachmentSupport = (doc.getObject("XZ_Plane029"), [""])
sketch30.MapMode = "FlatFace"
add_polygon(sketch30, [(-150, 38), (-150, 75), (-112, 75), (-112, 38)])  # lines 0-3
sketch30.addConstraint([
    Sketcher.Constraint("Vertical", 0),
    Sketcher.Constraint("Horizontal", 1),
    Sketcher.Constraint("Vertical", 2),
    Sketcher.Constraint("Horizontal", 3),
    Sketcher.Constraint("Equal", 3, 0),
    Sketcher.Constraint("DistanceX", 1, 1, 1, 2, Q("37.5 mm")),
    Sketcher.Constraint("DistanceX", 0, 2, -1, 1, Q("150 mm")),
    Sketcher.Constraint("DistanceY", -1, 1, 0, 2, Q("75 mm")),
])
pad30 = body30.newObject("PartDesign::Pad", "Pad029")
pad30.Profile = sketch30
pad30.Length = 10
pad30.Reversed = True
body31 = doc.addObject("PartDesign::Body", "Body030")

# Sketch on XZ plane
sketch31 = body31.newObject("Sketcher::SketchObject", "Sketch030")
sketch31.AttachmentSupport = (doc.getObject("XZ_Plane030"), [""])
sketch31.MapMode = "FlatFace"
add_polygon(sketch31, [(-75, 38), (-75, 75), (-38, 75), (-38, 38)])  # lines 0-3
sketch31.addConstraint([
    Sketcher.Constraint("Vertical", 0),
    Sketcher.Constraint("Horizontal", 1),
    Sketcher.Constraint("Vertical", 2),
    Sketcher.Constraint("Horizontal", 3),
    Sketcher.Constraint("Equal", 3, 0),
    Sketcher.Constraint("DistanceX", 1, 1, 1, 2, Q("37.5 mm")),
    Sketcher.Constraint("DistanceX", 0, 2, -1, 1, Q("75 mm")),
    Sketcher.Constraint("DistanceY", -1, 1, 0, 2, Q("75 mm")),
])
pad31 = body31.newObject("PartDesign::Pad", "Pad030")
pad31.Profile = sketch31
pad31.Length = 10
pad31.Reversed = True
body32 = doc.addObject("PartDesign::Body", "Body031")

# Sketch on XZ plane
sketch32 = body32.newObject("Sketcher::SketchObject", "Sketch031")
sketch32.AttachmentSupport = (doc.getObject("XZ_Plane031"), [""])
sketch32.MapMode = "FlatFace"
add_polygon(sketch32, [(-112, 75), (-112, 112), (-75, 112), (-75, 75)])  # lines 0-3
sketch32.addConstraint([
    Sketcher.Constraint("Vertical", 0),
    Sketcher.Constraint("Horizontal", 1),
    Sketcher.Constraint("Vertical", 2),
    Sketcher.Constraint("Horizontal", 3),
    Sketcher.Constraint("Equal", 3, 0),
    Sketcher.Constraint("DistanceX", 1, 1, 1, 2, Q("37.5 mm")),
    Sketcher.Constraint("DistanceX", 1, 2, -1, 1, Q("75 mm")),
    Sketcher.Constraint("DistanceY", -1, 1, 2, 2, Q("75 mm")),
])
pad32 = body32.newObject("PartDesign::Pad", "Pad031")
pad32.Profile = sketch32
pad32.Length = 10
pad32.Reversed = True

doc.recompute()
